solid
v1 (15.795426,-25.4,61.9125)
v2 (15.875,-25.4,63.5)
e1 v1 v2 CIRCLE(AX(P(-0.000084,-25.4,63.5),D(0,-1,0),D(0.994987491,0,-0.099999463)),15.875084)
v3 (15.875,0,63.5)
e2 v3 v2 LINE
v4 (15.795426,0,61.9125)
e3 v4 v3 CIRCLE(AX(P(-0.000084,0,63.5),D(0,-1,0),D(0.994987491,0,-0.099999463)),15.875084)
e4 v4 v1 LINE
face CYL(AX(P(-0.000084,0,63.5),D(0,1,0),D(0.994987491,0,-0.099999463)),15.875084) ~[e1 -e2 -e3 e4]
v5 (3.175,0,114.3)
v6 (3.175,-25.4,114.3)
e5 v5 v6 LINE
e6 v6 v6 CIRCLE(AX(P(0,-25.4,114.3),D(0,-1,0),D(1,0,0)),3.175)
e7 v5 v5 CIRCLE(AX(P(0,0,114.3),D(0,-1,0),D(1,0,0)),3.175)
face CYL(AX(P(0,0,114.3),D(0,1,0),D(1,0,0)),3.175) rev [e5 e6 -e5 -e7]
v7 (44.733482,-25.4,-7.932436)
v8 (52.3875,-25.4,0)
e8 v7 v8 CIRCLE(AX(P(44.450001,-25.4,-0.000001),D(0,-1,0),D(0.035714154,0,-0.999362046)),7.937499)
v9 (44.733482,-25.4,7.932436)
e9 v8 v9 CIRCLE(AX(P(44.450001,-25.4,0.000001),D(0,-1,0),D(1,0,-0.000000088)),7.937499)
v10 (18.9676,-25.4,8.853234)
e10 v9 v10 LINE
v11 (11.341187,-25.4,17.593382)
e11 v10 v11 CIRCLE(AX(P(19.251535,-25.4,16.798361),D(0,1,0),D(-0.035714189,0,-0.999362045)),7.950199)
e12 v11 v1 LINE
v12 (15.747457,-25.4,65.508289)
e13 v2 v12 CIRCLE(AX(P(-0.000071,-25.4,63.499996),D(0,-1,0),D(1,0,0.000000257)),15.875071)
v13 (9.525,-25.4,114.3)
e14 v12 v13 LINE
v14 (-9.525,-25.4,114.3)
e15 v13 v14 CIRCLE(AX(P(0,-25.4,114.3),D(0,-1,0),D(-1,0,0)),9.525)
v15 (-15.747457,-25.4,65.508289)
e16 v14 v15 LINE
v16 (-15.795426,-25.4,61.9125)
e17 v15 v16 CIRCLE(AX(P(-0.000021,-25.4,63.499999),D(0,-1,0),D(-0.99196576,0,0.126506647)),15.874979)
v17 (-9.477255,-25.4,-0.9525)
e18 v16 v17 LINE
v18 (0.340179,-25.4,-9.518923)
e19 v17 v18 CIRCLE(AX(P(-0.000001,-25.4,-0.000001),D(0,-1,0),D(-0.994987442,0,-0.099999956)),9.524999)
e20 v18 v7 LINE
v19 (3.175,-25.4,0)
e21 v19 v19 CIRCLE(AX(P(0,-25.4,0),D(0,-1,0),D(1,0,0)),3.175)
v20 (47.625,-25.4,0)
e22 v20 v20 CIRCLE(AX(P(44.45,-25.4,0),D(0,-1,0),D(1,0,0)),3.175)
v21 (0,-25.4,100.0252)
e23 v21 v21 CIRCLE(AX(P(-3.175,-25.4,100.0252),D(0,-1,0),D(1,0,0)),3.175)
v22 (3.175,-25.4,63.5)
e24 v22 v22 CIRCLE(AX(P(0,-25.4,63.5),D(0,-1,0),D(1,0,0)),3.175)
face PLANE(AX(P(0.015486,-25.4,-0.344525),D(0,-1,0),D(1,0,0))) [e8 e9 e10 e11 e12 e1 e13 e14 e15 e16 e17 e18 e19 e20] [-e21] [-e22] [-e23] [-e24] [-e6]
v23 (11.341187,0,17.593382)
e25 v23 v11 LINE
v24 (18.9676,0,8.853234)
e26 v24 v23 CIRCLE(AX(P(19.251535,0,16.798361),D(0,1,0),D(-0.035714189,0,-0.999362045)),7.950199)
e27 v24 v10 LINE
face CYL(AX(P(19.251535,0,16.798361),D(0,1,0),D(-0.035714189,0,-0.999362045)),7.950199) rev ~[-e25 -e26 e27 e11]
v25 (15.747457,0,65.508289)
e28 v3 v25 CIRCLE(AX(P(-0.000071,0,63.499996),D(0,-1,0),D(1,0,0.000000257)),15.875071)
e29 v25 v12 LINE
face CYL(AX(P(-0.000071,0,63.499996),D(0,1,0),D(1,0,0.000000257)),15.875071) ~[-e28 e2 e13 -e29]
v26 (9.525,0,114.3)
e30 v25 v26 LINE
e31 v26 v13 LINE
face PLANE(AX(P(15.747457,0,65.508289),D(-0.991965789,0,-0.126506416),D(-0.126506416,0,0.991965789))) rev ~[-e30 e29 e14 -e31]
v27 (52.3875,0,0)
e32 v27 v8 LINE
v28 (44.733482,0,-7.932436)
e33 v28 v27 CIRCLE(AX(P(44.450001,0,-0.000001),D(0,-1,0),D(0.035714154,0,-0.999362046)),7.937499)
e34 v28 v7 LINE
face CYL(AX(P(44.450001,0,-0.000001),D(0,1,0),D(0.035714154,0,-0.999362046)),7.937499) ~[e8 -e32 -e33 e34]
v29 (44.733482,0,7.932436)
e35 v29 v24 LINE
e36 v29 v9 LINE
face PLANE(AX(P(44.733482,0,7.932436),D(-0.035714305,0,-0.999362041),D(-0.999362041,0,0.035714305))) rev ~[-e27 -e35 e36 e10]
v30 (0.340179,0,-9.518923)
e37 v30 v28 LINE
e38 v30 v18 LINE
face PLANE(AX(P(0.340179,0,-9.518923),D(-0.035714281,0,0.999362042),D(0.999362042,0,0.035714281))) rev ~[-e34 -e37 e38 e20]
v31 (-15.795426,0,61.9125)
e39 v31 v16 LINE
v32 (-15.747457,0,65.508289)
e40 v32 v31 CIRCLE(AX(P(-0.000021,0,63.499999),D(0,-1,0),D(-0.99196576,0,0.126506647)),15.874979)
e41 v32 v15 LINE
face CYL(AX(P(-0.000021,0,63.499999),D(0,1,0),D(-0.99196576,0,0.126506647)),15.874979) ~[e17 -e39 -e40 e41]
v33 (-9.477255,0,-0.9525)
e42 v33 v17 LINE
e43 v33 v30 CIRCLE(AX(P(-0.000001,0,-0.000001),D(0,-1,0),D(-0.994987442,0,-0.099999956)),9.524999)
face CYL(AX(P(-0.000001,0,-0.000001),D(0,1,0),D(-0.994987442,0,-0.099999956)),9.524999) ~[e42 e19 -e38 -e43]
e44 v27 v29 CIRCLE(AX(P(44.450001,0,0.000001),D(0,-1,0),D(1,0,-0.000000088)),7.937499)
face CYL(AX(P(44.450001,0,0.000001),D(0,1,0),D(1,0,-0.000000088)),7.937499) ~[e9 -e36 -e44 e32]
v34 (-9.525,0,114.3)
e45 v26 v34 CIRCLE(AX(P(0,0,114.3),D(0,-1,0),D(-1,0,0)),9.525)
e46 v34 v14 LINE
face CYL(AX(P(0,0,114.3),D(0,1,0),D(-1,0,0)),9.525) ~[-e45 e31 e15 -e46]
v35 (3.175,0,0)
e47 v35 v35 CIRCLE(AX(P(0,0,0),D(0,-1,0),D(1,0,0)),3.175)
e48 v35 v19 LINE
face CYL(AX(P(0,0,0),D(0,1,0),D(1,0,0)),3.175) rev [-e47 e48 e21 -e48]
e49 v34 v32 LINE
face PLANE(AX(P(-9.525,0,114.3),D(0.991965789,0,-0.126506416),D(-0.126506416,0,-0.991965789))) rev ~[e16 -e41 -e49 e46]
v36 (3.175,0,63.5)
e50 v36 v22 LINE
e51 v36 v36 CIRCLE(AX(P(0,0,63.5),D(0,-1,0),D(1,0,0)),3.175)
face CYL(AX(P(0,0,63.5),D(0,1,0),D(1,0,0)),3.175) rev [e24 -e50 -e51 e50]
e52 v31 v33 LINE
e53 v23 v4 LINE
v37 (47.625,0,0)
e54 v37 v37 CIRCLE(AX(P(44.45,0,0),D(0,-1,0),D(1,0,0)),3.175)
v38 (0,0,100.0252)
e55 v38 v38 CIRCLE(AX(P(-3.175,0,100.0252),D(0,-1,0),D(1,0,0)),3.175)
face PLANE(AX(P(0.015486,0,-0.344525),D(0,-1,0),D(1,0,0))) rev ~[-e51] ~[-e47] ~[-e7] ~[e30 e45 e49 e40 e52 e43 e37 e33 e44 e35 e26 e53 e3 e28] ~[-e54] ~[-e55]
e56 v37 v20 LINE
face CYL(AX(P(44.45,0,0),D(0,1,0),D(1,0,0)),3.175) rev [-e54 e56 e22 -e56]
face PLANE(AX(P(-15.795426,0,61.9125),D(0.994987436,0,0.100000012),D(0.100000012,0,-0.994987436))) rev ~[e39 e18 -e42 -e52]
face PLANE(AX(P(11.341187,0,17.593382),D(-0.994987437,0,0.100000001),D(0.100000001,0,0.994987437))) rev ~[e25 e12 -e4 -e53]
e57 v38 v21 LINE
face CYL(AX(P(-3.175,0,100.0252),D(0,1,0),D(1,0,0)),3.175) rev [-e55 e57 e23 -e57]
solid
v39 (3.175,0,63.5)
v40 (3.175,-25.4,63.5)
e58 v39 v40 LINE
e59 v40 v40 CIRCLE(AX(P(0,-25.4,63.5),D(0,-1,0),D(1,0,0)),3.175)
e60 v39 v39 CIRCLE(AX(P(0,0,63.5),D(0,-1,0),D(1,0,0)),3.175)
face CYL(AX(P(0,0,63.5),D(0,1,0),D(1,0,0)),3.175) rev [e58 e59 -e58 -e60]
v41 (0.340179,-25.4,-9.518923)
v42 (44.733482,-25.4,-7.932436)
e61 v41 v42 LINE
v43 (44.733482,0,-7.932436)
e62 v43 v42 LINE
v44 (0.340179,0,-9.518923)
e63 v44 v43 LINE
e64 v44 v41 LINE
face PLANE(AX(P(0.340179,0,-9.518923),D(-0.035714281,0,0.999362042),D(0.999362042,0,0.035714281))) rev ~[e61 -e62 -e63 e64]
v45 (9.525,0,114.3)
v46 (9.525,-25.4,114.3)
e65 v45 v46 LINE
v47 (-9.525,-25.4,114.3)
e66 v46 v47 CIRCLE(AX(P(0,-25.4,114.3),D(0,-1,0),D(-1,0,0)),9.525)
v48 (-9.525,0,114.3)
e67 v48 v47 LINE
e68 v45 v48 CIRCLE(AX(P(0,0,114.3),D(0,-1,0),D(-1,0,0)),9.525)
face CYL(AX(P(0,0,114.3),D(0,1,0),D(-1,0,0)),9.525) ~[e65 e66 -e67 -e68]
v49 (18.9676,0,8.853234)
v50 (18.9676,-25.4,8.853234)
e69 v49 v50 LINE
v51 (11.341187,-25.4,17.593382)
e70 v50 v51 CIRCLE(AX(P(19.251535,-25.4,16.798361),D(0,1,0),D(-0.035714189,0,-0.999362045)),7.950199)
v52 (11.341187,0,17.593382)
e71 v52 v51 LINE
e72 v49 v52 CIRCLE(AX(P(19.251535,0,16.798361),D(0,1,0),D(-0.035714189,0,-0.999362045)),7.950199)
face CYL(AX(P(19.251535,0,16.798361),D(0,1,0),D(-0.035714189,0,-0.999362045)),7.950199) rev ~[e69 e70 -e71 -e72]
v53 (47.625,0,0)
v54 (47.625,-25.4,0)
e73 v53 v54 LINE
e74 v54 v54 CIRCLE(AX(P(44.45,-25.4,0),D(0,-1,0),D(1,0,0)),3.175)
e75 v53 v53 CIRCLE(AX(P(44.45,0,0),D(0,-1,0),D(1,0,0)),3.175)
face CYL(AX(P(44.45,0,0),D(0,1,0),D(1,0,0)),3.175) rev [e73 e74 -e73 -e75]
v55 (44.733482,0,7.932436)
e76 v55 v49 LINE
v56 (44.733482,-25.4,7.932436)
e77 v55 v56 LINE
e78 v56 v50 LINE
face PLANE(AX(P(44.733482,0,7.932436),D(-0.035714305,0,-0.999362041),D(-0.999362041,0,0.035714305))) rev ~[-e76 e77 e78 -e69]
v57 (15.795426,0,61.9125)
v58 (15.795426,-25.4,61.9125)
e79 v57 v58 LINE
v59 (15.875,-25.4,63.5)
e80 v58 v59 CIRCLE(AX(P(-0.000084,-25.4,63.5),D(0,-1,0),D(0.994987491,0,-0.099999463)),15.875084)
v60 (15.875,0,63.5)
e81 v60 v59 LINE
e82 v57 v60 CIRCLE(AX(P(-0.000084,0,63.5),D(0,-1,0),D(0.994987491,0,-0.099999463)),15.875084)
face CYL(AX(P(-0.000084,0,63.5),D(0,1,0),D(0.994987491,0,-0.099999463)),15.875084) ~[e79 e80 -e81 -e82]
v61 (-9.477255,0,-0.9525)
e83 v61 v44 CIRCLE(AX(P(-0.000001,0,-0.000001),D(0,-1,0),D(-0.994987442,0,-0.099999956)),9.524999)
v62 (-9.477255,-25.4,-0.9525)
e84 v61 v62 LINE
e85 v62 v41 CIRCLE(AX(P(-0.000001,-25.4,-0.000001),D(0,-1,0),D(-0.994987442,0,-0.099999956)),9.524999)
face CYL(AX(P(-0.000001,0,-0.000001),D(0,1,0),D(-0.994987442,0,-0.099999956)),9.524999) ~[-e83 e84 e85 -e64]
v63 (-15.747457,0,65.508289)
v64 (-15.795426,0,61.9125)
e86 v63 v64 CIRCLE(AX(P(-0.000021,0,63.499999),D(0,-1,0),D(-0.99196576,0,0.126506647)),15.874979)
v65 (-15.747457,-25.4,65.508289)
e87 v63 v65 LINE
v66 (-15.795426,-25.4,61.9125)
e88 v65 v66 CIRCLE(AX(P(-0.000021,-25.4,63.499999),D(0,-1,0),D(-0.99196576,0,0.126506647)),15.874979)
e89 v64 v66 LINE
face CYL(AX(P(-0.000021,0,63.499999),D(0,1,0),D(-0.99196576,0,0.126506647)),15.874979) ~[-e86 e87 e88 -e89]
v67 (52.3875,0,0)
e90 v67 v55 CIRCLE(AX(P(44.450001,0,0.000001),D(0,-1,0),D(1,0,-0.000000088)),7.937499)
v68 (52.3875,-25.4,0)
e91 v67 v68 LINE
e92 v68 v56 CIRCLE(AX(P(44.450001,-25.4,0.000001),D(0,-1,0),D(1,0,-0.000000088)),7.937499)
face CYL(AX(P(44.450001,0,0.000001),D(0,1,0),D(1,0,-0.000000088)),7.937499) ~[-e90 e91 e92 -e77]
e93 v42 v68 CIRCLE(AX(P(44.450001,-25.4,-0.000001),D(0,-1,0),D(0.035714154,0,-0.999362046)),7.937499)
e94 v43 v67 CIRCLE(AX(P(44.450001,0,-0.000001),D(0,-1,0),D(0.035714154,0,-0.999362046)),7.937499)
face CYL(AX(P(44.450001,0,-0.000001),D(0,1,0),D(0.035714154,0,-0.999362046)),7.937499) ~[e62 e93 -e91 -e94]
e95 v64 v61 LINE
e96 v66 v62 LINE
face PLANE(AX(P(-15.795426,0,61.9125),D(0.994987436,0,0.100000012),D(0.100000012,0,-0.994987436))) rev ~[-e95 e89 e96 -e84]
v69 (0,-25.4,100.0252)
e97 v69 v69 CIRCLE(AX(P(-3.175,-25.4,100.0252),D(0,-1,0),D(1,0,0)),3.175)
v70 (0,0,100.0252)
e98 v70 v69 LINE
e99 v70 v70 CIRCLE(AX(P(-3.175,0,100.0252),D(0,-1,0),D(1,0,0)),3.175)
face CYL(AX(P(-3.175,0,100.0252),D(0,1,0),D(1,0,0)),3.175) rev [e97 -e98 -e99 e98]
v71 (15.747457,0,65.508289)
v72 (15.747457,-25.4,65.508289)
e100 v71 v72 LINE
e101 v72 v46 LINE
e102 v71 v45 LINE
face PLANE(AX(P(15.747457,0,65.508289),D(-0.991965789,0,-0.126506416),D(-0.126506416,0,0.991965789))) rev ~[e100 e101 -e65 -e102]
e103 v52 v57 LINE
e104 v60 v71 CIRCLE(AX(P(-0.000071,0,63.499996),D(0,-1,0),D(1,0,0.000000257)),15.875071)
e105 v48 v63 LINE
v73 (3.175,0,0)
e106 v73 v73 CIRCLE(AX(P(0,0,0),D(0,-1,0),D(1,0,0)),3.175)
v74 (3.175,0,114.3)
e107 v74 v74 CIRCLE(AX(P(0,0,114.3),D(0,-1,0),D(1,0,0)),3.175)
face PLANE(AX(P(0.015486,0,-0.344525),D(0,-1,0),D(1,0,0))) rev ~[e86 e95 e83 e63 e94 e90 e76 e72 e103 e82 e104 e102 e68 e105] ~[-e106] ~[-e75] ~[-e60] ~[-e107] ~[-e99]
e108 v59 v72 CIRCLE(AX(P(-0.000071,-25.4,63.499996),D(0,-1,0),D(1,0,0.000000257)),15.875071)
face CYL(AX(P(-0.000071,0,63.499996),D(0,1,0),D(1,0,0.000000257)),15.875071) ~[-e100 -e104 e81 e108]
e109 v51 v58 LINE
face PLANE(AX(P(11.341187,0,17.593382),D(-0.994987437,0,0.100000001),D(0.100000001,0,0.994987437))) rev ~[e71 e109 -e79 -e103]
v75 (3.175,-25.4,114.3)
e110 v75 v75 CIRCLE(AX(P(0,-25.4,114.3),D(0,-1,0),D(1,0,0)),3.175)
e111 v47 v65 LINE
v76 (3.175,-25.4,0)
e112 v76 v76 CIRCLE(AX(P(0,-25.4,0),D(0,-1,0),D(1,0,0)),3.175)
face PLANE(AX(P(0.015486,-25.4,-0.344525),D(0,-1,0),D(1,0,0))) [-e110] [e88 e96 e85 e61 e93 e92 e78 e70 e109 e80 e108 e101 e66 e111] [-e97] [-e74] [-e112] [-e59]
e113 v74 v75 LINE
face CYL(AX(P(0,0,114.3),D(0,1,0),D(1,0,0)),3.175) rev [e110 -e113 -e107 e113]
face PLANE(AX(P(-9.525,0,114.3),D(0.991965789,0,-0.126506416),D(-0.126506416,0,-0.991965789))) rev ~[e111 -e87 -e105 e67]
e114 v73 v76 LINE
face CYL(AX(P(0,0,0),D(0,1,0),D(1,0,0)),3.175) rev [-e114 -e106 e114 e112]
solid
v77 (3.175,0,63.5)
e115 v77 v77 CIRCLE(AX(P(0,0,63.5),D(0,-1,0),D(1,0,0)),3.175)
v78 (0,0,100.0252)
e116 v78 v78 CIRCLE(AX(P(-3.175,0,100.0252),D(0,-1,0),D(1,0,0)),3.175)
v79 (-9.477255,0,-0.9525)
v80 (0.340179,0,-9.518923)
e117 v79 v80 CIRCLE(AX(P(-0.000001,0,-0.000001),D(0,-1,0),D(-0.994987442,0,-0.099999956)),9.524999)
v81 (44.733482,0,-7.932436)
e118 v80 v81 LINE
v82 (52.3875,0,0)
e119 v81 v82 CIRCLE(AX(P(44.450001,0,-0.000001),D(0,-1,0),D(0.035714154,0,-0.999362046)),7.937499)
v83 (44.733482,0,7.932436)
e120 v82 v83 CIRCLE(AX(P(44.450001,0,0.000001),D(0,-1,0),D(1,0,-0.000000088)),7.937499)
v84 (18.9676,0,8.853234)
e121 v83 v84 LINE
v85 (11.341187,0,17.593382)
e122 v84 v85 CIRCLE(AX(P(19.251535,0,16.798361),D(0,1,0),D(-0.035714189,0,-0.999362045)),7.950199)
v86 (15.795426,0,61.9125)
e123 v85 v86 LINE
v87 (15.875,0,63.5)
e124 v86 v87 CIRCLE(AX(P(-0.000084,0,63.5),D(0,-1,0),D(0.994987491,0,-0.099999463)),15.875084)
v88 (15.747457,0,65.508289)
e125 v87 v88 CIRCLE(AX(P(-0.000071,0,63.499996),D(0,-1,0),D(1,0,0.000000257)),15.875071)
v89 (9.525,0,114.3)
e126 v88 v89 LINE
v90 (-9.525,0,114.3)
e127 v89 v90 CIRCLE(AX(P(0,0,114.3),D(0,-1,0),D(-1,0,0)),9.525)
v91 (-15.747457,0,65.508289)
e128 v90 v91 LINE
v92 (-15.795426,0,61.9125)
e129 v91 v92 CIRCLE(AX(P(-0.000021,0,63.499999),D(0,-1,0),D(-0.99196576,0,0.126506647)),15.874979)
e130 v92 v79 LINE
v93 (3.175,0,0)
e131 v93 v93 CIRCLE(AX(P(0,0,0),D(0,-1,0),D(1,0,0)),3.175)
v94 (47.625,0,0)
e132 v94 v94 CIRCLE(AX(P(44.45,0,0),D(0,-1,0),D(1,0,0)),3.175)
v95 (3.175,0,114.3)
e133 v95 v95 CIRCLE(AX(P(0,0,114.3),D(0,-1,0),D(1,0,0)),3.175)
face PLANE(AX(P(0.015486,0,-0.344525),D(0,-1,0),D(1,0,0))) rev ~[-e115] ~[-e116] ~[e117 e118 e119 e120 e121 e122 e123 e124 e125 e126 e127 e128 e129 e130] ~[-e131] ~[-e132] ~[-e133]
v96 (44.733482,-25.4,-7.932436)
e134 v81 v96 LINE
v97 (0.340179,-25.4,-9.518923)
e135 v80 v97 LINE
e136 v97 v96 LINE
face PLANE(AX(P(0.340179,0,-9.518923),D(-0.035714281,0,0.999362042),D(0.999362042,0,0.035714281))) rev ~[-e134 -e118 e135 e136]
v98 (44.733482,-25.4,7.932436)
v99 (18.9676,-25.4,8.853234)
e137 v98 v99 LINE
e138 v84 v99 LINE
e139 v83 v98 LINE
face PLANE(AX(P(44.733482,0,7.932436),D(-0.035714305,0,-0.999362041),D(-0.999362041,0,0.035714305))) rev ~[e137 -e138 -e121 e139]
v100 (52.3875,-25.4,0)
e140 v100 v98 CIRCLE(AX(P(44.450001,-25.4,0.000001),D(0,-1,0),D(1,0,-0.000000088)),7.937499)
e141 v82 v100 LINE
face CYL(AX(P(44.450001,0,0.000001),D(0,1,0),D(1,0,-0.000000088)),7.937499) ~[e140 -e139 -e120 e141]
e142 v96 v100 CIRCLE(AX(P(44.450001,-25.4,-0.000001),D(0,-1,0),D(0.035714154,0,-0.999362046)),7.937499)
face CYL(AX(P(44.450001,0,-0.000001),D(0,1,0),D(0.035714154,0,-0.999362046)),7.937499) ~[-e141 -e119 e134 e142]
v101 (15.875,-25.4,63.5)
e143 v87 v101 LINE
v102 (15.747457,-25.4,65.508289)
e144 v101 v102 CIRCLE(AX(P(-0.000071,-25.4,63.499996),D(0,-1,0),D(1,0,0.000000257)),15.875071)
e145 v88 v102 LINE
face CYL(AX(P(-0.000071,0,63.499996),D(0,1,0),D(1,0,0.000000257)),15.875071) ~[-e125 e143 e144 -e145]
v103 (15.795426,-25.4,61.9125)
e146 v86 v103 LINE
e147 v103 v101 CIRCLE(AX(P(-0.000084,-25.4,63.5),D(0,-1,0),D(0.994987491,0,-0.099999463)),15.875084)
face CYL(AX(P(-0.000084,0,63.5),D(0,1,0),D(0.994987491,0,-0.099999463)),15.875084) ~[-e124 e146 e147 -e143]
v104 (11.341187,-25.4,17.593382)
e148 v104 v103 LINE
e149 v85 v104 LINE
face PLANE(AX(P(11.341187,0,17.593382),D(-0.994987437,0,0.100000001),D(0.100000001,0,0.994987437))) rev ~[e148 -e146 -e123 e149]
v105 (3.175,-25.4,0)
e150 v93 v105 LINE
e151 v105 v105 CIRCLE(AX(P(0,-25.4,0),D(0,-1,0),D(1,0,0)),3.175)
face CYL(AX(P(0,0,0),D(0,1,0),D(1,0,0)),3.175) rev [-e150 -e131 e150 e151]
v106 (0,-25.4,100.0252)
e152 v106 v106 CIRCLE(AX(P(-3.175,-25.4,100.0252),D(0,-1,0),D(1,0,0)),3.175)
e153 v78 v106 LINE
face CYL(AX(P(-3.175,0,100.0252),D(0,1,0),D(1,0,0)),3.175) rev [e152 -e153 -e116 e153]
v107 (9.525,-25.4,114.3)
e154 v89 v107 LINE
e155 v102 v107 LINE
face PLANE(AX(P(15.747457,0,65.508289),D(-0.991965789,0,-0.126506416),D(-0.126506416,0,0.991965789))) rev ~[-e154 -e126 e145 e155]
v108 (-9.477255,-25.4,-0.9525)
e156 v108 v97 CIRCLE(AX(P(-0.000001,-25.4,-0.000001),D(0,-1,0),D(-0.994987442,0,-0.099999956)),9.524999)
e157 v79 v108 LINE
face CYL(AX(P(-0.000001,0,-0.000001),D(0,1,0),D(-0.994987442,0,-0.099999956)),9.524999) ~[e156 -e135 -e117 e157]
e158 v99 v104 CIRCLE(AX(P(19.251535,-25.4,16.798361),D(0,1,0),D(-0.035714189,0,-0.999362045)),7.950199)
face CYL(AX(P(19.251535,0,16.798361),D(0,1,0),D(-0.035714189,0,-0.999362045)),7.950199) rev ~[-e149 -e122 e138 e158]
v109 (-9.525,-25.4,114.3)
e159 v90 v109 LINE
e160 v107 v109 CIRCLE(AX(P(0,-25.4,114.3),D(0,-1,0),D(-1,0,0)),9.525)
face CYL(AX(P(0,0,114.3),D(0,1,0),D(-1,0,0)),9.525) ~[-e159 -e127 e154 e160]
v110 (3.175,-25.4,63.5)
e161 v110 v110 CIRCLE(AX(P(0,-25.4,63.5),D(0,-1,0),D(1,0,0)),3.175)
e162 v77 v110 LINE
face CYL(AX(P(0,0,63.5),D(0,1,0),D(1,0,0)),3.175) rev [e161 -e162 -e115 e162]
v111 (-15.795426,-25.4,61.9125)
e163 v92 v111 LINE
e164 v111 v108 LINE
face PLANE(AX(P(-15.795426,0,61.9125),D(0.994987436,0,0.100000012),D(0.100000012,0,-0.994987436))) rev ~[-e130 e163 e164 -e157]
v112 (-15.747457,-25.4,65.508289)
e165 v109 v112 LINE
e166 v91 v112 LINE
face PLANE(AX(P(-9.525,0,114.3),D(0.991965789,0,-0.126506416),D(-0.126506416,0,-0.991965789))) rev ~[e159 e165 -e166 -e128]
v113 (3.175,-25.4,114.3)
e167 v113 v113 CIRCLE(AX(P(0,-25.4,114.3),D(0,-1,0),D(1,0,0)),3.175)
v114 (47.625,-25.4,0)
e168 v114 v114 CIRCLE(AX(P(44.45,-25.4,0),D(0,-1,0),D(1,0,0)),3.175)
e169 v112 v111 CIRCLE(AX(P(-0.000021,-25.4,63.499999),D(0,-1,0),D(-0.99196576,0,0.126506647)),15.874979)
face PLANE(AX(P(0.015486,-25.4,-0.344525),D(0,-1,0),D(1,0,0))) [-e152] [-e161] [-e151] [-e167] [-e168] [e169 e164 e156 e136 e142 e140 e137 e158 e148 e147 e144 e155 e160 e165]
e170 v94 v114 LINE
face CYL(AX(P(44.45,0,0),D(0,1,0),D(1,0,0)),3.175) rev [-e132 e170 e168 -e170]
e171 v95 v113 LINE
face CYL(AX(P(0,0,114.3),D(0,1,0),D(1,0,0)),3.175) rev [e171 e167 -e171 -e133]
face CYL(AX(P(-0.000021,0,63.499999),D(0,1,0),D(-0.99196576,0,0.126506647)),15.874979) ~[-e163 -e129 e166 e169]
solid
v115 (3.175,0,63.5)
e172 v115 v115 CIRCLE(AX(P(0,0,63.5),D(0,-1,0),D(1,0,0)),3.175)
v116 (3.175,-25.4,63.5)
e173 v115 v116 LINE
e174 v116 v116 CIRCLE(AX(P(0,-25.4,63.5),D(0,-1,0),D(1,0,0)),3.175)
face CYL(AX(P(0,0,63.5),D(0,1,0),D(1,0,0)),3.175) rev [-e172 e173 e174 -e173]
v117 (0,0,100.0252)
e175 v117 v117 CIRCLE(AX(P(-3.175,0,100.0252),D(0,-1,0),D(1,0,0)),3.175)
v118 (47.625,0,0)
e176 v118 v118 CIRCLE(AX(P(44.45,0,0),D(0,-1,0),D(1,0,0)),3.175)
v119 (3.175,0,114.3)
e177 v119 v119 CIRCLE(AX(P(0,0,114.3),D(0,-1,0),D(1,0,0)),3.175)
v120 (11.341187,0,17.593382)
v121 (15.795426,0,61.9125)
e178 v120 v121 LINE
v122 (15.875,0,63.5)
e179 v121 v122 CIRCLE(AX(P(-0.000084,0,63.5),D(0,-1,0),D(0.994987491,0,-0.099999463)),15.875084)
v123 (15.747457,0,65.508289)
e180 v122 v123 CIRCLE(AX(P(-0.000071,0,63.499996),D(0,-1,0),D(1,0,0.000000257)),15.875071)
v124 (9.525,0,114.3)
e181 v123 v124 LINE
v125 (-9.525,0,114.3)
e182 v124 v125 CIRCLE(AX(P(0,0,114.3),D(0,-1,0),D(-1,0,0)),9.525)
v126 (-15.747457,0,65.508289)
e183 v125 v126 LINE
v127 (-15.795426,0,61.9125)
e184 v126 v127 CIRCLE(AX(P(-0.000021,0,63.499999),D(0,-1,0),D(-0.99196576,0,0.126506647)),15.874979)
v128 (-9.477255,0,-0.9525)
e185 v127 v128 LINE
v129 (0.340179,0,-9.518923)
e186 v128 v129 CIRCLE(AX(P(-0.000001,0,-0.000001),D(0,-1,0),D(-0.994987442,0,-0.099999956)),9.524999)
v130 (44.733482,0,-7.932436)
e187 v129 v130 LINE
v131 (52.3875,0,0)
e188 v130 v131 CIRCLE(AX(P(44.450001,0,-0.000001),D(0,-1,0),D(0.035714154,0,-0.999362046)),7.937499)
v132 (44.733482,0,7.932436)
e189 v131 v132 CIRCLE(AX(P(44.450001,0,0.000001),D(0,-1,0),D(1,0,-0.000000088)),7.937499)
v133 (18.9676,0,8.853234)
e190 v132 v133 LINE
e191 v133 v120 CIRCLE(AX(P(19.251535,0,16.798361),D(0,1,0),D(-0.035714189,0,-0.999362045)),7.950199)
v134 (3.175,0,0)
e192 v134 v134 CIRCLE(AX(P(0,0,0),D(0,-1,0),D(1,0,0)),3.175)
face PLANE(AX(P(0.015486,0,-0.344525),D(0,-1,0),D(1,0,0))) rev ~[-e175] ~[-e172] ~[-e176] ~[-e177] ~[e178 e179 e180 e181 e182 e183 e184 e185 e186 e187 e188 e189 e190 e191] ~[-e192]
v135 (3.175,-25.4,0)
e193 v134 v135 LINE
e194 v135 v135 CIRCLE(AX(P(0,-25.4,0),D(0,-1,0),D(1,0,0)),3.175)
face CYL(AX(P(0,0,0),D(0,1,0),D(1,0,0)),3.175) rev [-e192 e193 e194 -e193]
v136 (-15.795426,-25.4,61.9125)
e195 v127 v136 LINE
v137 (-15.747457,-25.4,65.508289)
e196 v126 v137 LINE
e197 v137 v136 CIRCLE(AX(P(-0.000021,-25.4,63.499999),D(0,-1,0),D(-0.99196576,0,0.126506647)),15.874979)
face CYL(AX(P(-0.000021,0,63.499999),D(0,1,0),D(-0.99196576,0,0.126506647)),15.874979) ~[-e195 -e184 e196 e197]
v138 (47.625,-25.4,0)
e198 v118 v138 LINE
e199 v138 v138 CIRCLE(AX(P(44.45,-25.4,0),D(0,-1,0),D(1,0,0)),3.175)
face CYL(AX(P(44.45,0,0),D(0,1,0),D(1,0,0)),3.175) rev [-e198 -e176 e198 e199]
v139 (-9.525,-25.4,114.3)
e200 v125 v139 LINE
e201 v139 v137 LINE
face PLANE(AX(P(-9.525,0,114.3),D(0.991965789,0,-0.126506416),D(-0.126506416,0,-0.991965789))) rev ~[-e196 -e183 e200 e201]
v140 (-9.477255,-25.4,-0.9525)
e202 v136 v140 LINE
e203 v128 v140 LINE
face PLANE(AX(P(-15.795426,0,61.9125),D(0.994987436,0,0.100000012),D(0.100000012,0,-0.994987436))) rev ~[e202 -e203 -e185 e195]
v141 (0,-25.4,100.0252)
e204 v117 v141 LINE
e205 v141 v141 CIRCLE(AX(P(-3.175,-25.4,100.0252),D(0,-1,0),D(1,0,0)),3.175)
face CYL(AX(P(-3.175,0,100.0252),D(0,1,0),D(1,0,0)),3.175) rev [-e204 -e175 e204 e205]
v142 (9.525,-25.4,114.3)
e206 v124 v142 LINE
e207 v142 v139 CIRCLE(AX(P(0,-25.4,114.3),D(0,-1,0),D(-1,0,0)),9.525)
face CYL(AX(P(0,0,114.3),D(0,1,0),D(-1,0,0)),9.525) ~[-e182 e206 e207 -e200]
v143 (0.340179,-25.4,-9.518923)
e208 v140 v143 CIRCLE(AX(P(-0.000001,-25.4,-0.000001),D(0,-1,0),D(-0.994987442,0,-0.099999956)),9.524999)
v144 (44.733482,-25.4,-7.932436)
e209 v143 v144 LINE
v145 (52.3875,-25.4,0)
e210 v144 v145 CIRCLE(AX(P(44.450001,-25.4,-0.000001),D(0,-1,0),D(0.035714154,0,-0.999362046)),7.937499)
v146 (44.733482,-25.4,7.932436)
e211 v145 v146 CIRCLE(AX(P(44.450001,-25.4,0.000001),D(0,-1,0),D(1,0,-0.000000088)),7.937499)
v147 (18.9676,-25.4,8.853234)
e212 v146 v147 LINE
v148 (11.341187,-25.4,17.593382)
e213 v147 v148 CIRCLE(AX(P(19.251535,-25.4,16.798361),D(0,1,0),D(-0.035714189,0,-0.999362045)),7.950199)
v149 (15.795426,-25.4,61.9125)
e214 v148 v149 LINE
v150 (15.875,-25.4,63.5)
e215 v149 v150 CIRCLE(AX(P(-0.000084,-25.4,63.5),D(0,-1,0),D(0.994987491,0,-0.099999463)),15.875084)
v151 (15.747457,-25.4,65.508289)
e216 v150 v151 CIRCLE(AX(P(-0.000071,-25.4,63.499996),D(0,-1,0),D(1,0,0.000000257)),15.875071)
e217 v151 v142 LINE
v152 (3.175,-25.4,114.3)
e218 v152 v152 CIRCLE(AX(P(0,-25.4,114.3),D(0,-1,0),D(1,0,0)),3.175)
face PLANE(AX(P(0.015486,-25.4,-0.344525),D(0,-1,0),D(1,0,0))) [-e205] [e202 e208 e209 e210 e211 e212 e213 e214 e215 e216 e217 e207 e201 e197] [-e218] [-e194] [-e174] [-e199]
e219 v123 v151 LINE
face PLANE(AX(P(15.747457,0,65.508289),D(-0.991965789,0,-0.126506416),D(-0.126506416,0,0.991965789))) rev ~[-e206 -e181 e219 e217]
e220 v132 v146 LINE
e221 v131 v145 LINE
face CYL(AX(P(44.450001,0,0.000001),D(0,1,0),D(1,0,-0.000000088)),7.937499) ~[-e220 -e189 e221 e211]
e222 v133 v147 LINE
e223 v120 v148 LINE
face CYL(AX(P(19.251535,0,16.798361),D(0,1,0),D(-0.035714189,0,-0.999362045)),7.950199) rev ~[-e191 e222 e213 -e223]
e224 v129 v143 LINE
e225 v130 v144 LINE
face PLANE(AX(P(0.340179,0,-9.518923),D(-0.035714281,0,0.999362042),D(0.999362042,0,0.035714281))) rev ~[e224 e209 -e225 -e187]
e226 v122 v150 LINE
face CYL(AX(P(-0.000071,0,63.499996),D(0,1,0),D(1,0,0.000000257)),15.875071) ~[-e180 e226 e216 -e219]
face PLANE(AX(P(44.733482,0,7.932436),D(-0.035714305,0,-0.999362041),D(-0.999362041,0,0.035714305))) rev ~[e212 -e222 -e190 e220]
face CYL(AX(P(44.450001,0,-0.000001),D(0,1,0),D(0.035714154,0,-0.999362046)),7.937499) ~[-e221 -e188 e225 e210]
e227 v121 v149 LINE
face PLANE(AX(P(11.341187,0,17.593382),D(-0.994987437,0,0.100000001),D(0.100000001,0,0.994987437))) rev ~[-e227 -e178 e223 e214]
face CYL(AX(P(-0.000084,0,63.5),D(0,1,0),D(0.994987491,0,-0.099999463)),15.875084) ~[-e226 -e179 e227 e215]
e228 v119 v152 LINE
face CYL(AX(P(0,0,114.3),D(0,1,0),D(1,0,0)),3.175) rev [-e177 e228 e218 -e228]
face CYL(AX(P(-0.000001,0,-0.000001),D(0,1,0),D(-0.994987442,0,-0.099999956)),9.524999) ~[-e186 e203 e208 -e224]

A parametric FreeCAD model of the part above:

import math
import FreeCAD as App
import Part
import Sketcher
from FreeCAD import Vector
Q = App.Units.Quantity

doc = App.newDocument("Part")
body = doc.addObject("PartDesign::Body", "Body")

sketch1 = doc.addObject("Sketcher::SketchObject", "Sketch")
body.addObject(sketch1)
sketch1.AttachmentSupport = (doc.XZ_Plane, [""])
sketch1.MapMode = "FlatFace"
sketch1.addGeometry([
    Part.ArcOfCircle(Part.Circle(Vector(-0.000001, -0.000001, 0), Vector(0, 0, 1), 9.524999), math.radians(-174.260832), math.radians(-87.953281)),
    Part.LineSegment(Vector(0.340179, -9.518923, 0), Vector(44.733482, -7.932436, 0)),
    Part.ArcOfCircle(Part.Circle(Vector(44.450001, -0.000001, 0), Vector(0, 0, 1), 7.937499), math.radians(-87.953294), math.radians(0.000005)),
    Part.ArcOfCircle(Part.Circle(Vector(44.450001, 0.000001, 0), Vector(0, 0, 1), 7.937499), math.radians(-0.000005), math.radians(87.953294)),
    Part.LineSegment(Vector(44.733482, 7.932436, 0), Vector(18.9676, 8.853234, 0)),
    Part.ArcOfCircle(Part.Circle(Vector(19.251535, 16.798361, 0), Vector(0, 0, 1), 7.950199), math.radians(174.260822), math.radians(267.953292)),
    Part.LineSegment(Vector(11.341187, 17.593382, 0), Vector(15.795426, 61.9125, 0)),
    Part.ArcOfCircle(Part.Circle(Vector(-0.000084, 63.5, 0), Vector(0, 0, 1), 15.875084), math.radians(-5.73914), math.radians(0)),
    Part.ArcOfCircle(Part.Circle(Vector(-0.000071, 63.499996, 0), Vector(0, 0, 1), 15.875071), math.radians(0.000015), math.radians(7.267739)),
    Part.LineSegment(Vector(15.747457, 65.508289, 0), Vector(9.525, 114.3, 0)),
    Part.ArcOfCircle(Part.Circle(Vector(0, 114.3, 0), Vector(0, 0, 1), 9.525), math.radians(0), math.radians(180)),
    Part.LineSegment(Vector(-9.525, 114.3, 0), Vector(-15.747457, 65.508289, 0)),
    Part.ArcOfCircle(Part.Circle(Vector(-0.000021, 63.499999, 0), Vector(0, 0, 1), 15.874979), math.radians(172.732229), math.radians(185.739173)),
    Part.LineSegment(Vector(-15.795426, 61.9125, 0), Vector(-9.477255, -0.9525, 0)),
    Part.Circle(Vector(0, 0, 0), Vector(0, 0, 1), 3.175),
    Part.Circle(Vector(44.45, 0, 0), Vector(0, 0, 1), 3.175),
    Part.Circle(Vector(0, 63.5, 0), Vector(0, 0, 1), 3.175),
    Part.Circle(Vector(-3.175, 100.0252, 0), Vector(0, 0, 1), 3.175),
    Part.Circle(Vector(0, 114.3, 0), Vector(0, 0, 1), 3.175),
], False)
sketch1.addConstraint([
    Sketcher.Constraint("Coincident", 0, 2, 1, 1),
    Sketcher.Constraint("Coincident", 1, 2, 2, 1),
    Sketcher.Constraint("Coincident", 2, 2, 3, 1),
    Sketcher.Constraint("Coincident", 3, 2, 4, 1),
    Sketcher.Constraint("Coincident", 4, 2, 5, 2),
    Sketcher.Constraint("Coincident", 5, 1, 6, 1),
    Sketcher.Constraint("Coincident", 6, 2, 7, 1),
    Sketcher.Constraint("Coincident", 7, 2, 8, 1),
    Sketcher.Constraint("Coincident", 8, 2, 9, 1),
    Sketcher.Constraint("Coincident", 9, 2, 10, 1),
    Sketcher.Constraint("Coincident", 10, 2, 11, 1),
    Sketcher.Constraint("Coincident", 11, 2, 12, 1),
    Sketcher.Constraint("Coincident", 12, 2, 13, 1),
    Sketcher.Constraint("Coincident", 13, 2, 0, 1),
    Sketcher.Constraint("Coincident", 0, 3, -1, 1),
    Sketcher.Constraint("Coincident", 14, 3, -1, 1),
    Sketcher.Constraint("Coincident", 3, 3, 2, 3),
    Sketcher.Constraint("Coincident", 15, 3, 2, 3),
    Sketcher.Constraint("Coincident", 18, 3, 10, 3),
    Sketcher.Constraint("PointOnObject", 2, 3, -1),
    Sketcher.Constraint("PointOnObject", 10, 3, -2),
    Sketcher.Constraint("PointOnObject", 16, 3, -2),
    Sketcher.Constraint("PointOnObject", 2, 2, -1),
    Sketcher.Constraint("Diameter", 14, Q("0.25 in")),
    Sketcher.Constraint("Diameter", 15, Q("0.25 in")),
    Sketcher.Constraint("Diameter", 16, Q("0.25 in")),
    Sketcher.Constraint("Diameter", 17, Q("0.25 in")),
    Sketcher.Constraint("Diameter", 18, Q("0.25 in")),
    Sketcher.Constraint("Radius", 0, Q("0.375 in")),
    Sketcher.Constraint("Radius", 2, Q("0.3125 in")),
    Sketcher.Constraint("Radius", 5, Q("0.313 in")),
    Sketcher.Constraint("Radius", 10, Q("0.375 in")),
    Sketcher.Constraint("DistanceY", 7, 3, 10, 3, Q("2 in")),
    Sketcher.Constraint("DistanceY", 8, 3, 10, 3, Q("2.0000002 in")),
    Sketcher.Constraint("DistanceY", 12, 3, 10, 3, Q("2.0000001 in")),
    Sketcher.Constraint("DistanceY", 16, 3, 10, 3, Q("2 in")),
    Sketcher.Constraint("DistanceY", 7, 2, 9, 2, Q("2 in")),
    Sketcher.Constraint("DistanceY", 7, 3, 10, 2, Q("2 in")),
    Sketcher.Constraint("DistanceY", -1, 1, 7, 3, Q("2.5 in")),
    Sketcher.Constraint("DistanceY", -1, 1, 7, 2, Q("2.5 in")),
    Sketcher.Constraint("DistanceX", 17, 3, 9, 2, Q("0.5 in")),
    Sketcher.Constraint("DistanceX", -1, 1, 2, 3, Q("1.75 in")),
    Sketcher.Constraint("DistanceX", 9, 2, 7, 2, Q("0.25 in")),
    Sketcher.Constraint("DistanceY", -1, 1, 17, 3, Q("3.938 in")),
    Sketcher.Constraint("DistanceY", -1, 1, 6, 2, Q("2.4375 in")),
    Sketcher.Constraint("DistanceY", -1, 1, 12, 2, Q("2.4375 in")),
    Sketcher.Constraint("Radius", 8, 15.875071),
    Sketcher.Constraint("Radius", 12, 15.874979),
    Sketcher.Constraint("DistanceY", 13, 2, -1, 1, Q("0.0375 in")),
    Sketcher.Constraint("Radius", 7, 15.875084),
    Sketcher.Constraint("DistanceY", 5, 3, 5, 1, Q("0.0313 in")),
    Sketcher.Constraint("DistanceX", -1, 1, 4, 2, 18.9676),
    Sketcher.Constraint("Distance", 4, 25.78233),
    Sketcher.Constraint("Distance", 6, 44.54239),
    Sketcher.Constraint("Distance", 9, 49.186889),
    Sketcher.Constraint("Distance", 11, 49.186889),
    Sketcher.Constraint("DistanceY", -1, 1, 5, 3, 16.798361),
    Sketcher.Constraint("DistanceX", -1, 1, 0, 2, 0.340179),
    Sketcher.Constraint("DistanceY", -1, 1, 11, 2, 65.508289),
    Sketcher.Constraint("DistanceX", 2, 3, 1, 2, 0.283481),
])
pad1 = doc.addObject("PartDesign::Pad", "Pad")
body.addObject(pad1)
pad1.Profile = sketch1
pad1.Length = Q("1 in")
body2 = doc.addObject("PartDesign::Body", "Body001")

sketch2 = doc.addObject("Sketcher::SketchObject", "Sketch001")
body2.addObject(sketch2)
sketch2.AttachmentSupport = (doc.getObject("XZ_Plane001"), [""])
sketch2.MapMode = "FlatFace"
sketch2.addGeometry([
    Part.ArcOfCircle(Part.Circle(Vector(-0.000001, -0.000001, 0), Vector(0, 0, 1), 9.524999), math.radians(-174.260832), math.radians(-87.953281)),
    Part.LineSegment(Vector(0.340179, -9.518923, 0), Vector(44.733482, -7.932436, 0)),
    Part.ArcOfCircle(Part.Circle(Vector(44.450001, -0.000001, 0), Vector(0, 0, 1), 7.937499), math.radians(-87.953294), math.radians(0.000005)),
    Part.ArcOfCircle(Part.Circle(Vector(44.450001, 0.000001, 0), Vector(0, 0, 1), 7.937499), math.radians(-0.000005), math.radians(87.953294)),
    Part.LineSegment(Vector(44.733482, 7.932436, 0), Vector(18.9676, 8.853234, 0)),
    Part.ArcOfCircle(Part.Circle(Vector(19.251535, 16.798361, 0), Vector(0, 0, 1), 7.950199), math.radians(174.260822), math.radians(267.953292)),
    Part.LineSegment(Vector(11.341187, 17.593382, 0), Vector(15.795426, 61.9125, 0)),
    Part.ArcOfCircle(Part.Circle(Vector(-0.000084, 63.5, 0), Vector(0, 0, 1), 15.875084), math.radians(-5.73914), math.radians(0)),
    Part.ArcOfCircle(Part.Circle(Vector(-0.000071, 63.499996, 0), Vector(0, 0, 1), 15.875071), math.radians(0.000015), math.radians(7.267739)),
    Part.LineSegment(Vector(15.747457, 65.508289, 0), Vector(9.525, 114.3, 0)),
    Part.ArcOfCircle(Part.Circle(Vector(0, 114.3, 0), Vector(0, 0, 1), 9.525), math.radians(0), math.radians(180)),
    Part.LineSegment(Vector(-9.525, 114.3, 0), Vector(-15.747457, 65.508289, 0)),
    Part.ArcOfCircle(Part.Circle(Vector(-0.000021, 63.499999, 0), Vector(0, 0, 1), 15.874979), math.radians(172.732229), math.radians(185.739173)),
    Part.LineSegment(Vector(-15.795426, 61.9125, 0), Vector(-9.477255, -0.9525, 0)),
    Part.Circle(Vector(0, 0, 0), Vector(0, 0, 1), 3.175),
    Part.Circle(Vector(44.45, 0, 0), Vector(0, 0, 1), 3.175),
    Part.Circle(Vector(0, 63.5, 0), Vector(0, 0, 1), 3.175),
    Part.Circle(Vector(-3.175, 100.0252, 0), Vector(0, 0, 1), 3.175),
    Part.Circle(Vector(0, 114.3, 0), Vector(0, 0, 1), 3.175),
], False)
sketch2.addConstraint([
    Sketcher.Constraint("Coincident", 0, 2, 1, 1),
    Sketcher.Constraint("Coincident", 1, 2, 2, 1),
    Sketcher.Constraint("Coincident", 2, 2, 3, 1),
    Sketcher.Constraint("Coincident", 3, 2, 4, 1),
    Sketcher.Constraint("Coincident", 4, 2, 5, 2),
    Sketcher.Constraint("Coincident", 5, 1, 6, 1),
    Sketcher.Constraint("Coincident", 6, 2, 7, 1),
    Sketcher.Constraint("Coincident", 7, 2, 8, 1),
    Sketcher.Constraint("Coincident", 8, 2, 9, 1),
    Sketcher.Constraint("Coincident", 9, 2, 10, 1),
    Sketcher.Constraint("Coincident", 10, 2, 11, 1),
    Sketcher.Constraint("Coincident", 11, 2, 12, 1),
    Sketcher.Constraint("Coincident", 12, 2, 13, 1),
    Sketcher.Constraint("Coincident", 13, 2, 0, 1),
    Sketcher.Constraint("Coincident", 0, 3, -1, 1),
    Sketcher.Constraint("Coincident", 14, 3, -1, 1),
    Sketcher.Constraint("Coincident", 3, 3, 2, 3),
    Sketcher.Constraint("Coincident", 15, 3, 2, 3),
    Sketcher.Constraint("Coincident", 18, 3, 10, 3),
    Sketcher.Constraint("PointOnObject", 2, 3, -1),
    Sketcher.Constraint("PointOnObject", 10, 3, -2),
    Sketcher.Constraint("PointOnObject", 16, 3, -2),
    Sketcher.Constraint("PointOnObject", 2, 2, -1),
    Sketcher.Constraint("Diameter", 14, Q("0.25 in")),
    Sketcher.Constraint("Diameter", 15, Q("0.25 in")),
    Sketcher.Constraint("Diameter", 16, Q("0.25 in")),
    Sketcher.Constraint("Diameter", 17, Q("0.25 in")),
    Sketcher.Constraint("Diameter", 18, Q("0.25 in")),
    Sketcher.Constraint("Radius", 0, Q("0.375 in")),
    Sketcher.Constraint("Radius", 2, Q("0.3125 in")),
    Sketcher.Constraint("Radius", 5, Q("0.313 in")),
    Sketcher.Constraint("Radius", 10, Q("0.375 in")),
    Sketcher.Constraint("DistanceY", 7, 3, 10, 3, Q("2 in")),
    Sketcher.Constraint("DistanceY", 8, 3, 10, 3, Q("2.0000002 in")),
    Sketcher.Constraint("DistanceY", 12, 3, 10, 3, Q("2.0000001 in")),
    Sketcher.Constraint("DistanceY", 16, 3, 10, 3, Q("2 in")),
    Sketcher.Constraint("DistanceY", 7, 2, 9, 2, Q("2 in")),
    Sketcher.Constraint("DistanceY", 7, 3, 10, 2, Q("2 in")),
    Sketcher.Constraint("DistanceY", -1, 1, 7, 3, Q("2.5 in")),
    Sketcher.Constraint("DistanceY", -1, 1, 7, 2, Q("2.5 in")),
    Sketcher.Constraint("DistanceX", 17, 3, 9, 2, Q("0.5 in")),
    Sketcher.Constraint("DistanceX", -1, 1, 2, 3, Q("1.75 in")),
    Sketcher.Constraint("DistanceX", 9, 2, 7, 2, Q("0.25 in")),
    Sketcher.Constraint("DistanceY", -1, 1, 17, 3, Q("3.938 in")),
    Sketcher.Constraint("DistanceY", -1, 1, 6, 2, Q("2.4375 in")),
    Sketcher.Constraint("DistanceY", -1, 1, 12, 2, Q("2.4375 in")),
    Sketcher.Constraint("Radius", 8, 15.875071),
    Sketcher.Constraint("Radius", 12, 15.874979),
    Sketcher.Constraint("DistanceY", 13, 2, -1, 1, Q("0.0375 in")),
    Sketcher.Constraint("Radius", 7, 15.875084),
    Sketcher.Constraint("DistanceY", 5, 3, 5, 1, Q("0.0313 in")),
    Sketcher.Constraint("DistanceX", -1, 1, 4, 2, 18.9676),
    Sketcher.Constraint("Distance", 4, 25.78233),
    Sketcher.Constraint("Distance", 6, 44.54239),
    Sketcher.Constraint("Distance", 9, 49.186889),
    Sketcher.Constraint("Distance", 11, 49.186889),
    Sketcher.Constraint("DistanceY", -1, 1, 5, 3, 16.798361),
    Sketcher.Constraint("DistanceX", -1, 1, 0, 2, 0.340179),
    Sketcher.Constraint("DistanceY", -1, 1, 11, 2, 65.508289),
    Sketcher.Constraint("DistanceX", 2, 3, 1, 2, 0.283481),
])
pad2 = doc.addObject("PartDesign::Pad", "Pad001")
body2.addObject(pad2)
pad2.Profile = sketch2
pad2.Length = Q("1 in")
body3 = doc.addObject("PartDesign::Body", "Body002")

sketch3 = doc.addObject("Sketcher::SketchObject", "Sketch002")
body3.addObject(sketch3)
sketch3.AttachmentSupport = (doc.getObject("XZ_Plane002"), [""])
sketch3.MapMode = "FlatFace"
sketch3.addGeometry([
    Part.ArcOfCircle(Part.Circle(Vector(-0.000001, -0.000001, 0), Vector(0, 0, 1), 9.524999), math.radians(-174.260832), math.radians(-87.953281)),
    Part.LineSegment(Vector(0.340179, -9.518923, 0), Vector(44.733482, -7.932436, 0)),
    Part.ArcOfCircle(Part.Circle(Vector(44.450001, -0.000001, 0), Vector(0, 0, 1), 7.937499), math.radians(-87.953294), math.radians(0.000005)),
    Part.ArcOfCircle(Part.Circle(Vector(44.450001, 0.000001, 0), Vector(0, 0, 1), 7.937499), math.radians(-0.000005), math.radians(87.953294)),
    Part.LineSegment(Vector(44.733482, 7.932436, 0), Vector(18.9676, 8.853234, 0)),
    Part.ArcOfCircle(Part.Circle(Vector(19.251535, 16.798361, 0), Vector(0, 0, 1), 7.950199), math.radians(174.260822), math.radians(267.953292)),
    Part.LineSegment(Vector(11.341187, 17.593382, 0), Vector(15.795426, 61.9125, 0)),
    Part.ArcOfCircle(Part.Circle(Vector(-0.000084, 63.5, 0), Vector(0, 0, 1), 15.875084), math.radians(-5.73914), math.radians(0)),
    Part.ArcOfCircle(Part.Circle(Vector(-0.000071, 63.499996, 0), Vector(0, 0, 1), 15.875071), math.radians(0.000015), math.radians(7.267739)),
    Part.LineSegment(Vector(15.747457, 65.508289, 0), Vector(9.525, 114.3, 0)),
    Part.ArcOfCircle(Part.Circle(Vector(0, 114.3, 0), Vector(0, 0, 1), 9.525), math.radians(0), math.radians(180)),
    Part.LineSegment(Vector(-9.525, 114.3, 0), Vector(-15.747457, 65.508289, 0)),
    Part.ArcOfCircle(Part.Circle(Vector(-0.000021, 63.499999, 0), Vector(0, 0, 1), 15.874979), math.radians(172.732229), math.radians(185.739173)),
    Part.LineSegment(Vector(-15.795426, 61.9125, 0), Vector(-9.477255, -0.9525, 0)),
    Part.Circle(Vector(0, 0, 0), Vector(0, 0, 1), 3.175),
    Part.Circle(Vector(44.45, 0, 0), Vector(0, 0, 1), 3.175),
    Part.Circle(Vector(0, 63.5, 0), Vector(0, 0, 1), 3.175),
    Part.Circle(Vector(-3.175, 100.0252, 0), Vector(0, 0, 1), 3.175),
    Part.Circle(Vector(0, 114.3, 0), Vector(0, 0, 1), 3.175),
], False)
sketch3.addConstraint([
    Sketcher.Constraint("Coincident", 0, 2, 1, 1),
    Sketcher.Constraint("Coincident", 1, 2, 2, 1),
    Sketcher.Constraint("Coincident", 2, 2, 3, 1),
    Sketcher.Constraint("Coincident", 3, 2, 4, 1),
    Sketcher.Constraint("Coincident", 4, 2, 5, 2),
    Sketcher.Constraint("Coincident", 5, 1, 6, 1),
    Sketcher.Constraint("Coincident", 6, 2, 7, 1),
    Sketcher.Constraint("Coincident", 7, 2, 8, 1),
    Sketcher.Constraint("Coincident", 8, 2, 9, 1),
    Sketcher.Constraint("Coincident", 9, 2, 10, 1),
    Sketcher.Constraint("Coincident", 10, 2, 11, 1),
    Sketcher.Constraint("Coincident", 11, 2, 12, 1),
    Sketcher.Constraint("Coincident", 12, 2, 13, 1),
    Sketcher.Constraint("Coincident", 13, 2, 0, 1),
    Sketcher.Constraint("Coincident", 0, 3, -1, 1),
    Sketcher.Constraint("Coincident", 14, 3, -1, 1),
    Sketcher.Constraint("Coincident", 3, 3, 2, 3),
    Sketcher.Constraint("Coincident", 15, 3, 2, 3),
    Sketcher.Constraint("Coincident", 18, 3, 10, 3),
    Sketcher.Constraint("PointOnObject", 2, 3, -1),
    Sketcher.Constraint("PointOnObject", 10, 3, -2),
    Sketcher.Constraint("PointOnObject", 16, 3, -2),
    Sketcher.Constraint("PointOnObject", 2, 2, -1),
    Sketcher.Constraint("Diameter", 14, Q("0.25 in")),
    Sketcher.Constraint("Diameter", 15, Q("0.25 in")),
    Sketcher.Constraint("Diameter", 16, Q("0.25 in")),
    Sketcher.Constraint("Diameter", 17, Q("0.25 in")),
    Sketcher.Constraint("Diameter", 18, Q("0.25 in")),
    Sketcher.Constraint("Radius", 0, Q("0.375 in")),
    Sketcher.Constraint("Radius", 2, Q("0.3125 in")),
    Sketcher.Constraint("Radius", 5, Q("0.313 in")),
    Sketcher.Constraint("Radius", 10, Q("0.375 in")),
    Sketcher.Constraint("DistanceY", 7, 3, 10, 3, Q("2 in")),
    Sketcher.Constraint("DistanceY", 8, 3, 10, 3, Q("2.0000002 in")),
    Sketcher.Constraint("DistanceY", 12, 3, 10, 3, Q("2.0000001 in")),
    Sketcher.Constraint("DistanceY", 16, 3, 10, 3, Q("2 in")),
    Sketcher.Constraint("DistanceY", 7, 2, 9, 2, Q("2 in")),
    Sketcher.Constraint("DistanceY", 7, 3, 10, 2, Q("2 in")),
    Sketcher.Constraint("DistanceY", -1, 1, 7, 3, Q("2.5 in")),
    Sketcher.Constraint("DistanceY", -1, 1, 7, 2, Q("2.5 in")),
    Sketcher.Constraint("DistanceX", 17, 3, 9, 2, Q("0.5 in")),
    Sketcher.Constraint("DistanceX", -1, 1, 2, 3, Q("1.75 in")),
    Sketcher.Constraint("DistanceX", 9, 2, 7, 2, Q("0.25 in")),
    Sketcher.Constraint("DistanceY", -1, 1, 17, 3, Q("3.938 in")),
    Sketcher.Constraint("DistanceY", -1, 1, 6, 2, Q("2.4375 in")),
    Sketcher.Constraint("DistanceY", -1, 1, 12, 2, Q("2.4375 in")),
    Sketcher.Constraint("Radius", 8, 15.875071),
    Sketcher.Constraint("Radius", 12, 15.874979),
    Sketcher.Constraint("DistanceY", 13, 2, -1, 1, Q("0.0375 in")),
    Sketcher.Constraint("Radius", 7, 15.875084),
    Sketcher.Constraint("DistanceY", 5, 3, 5, 1, Q("0.0313 in")),
    Sketcher.Constraint("DistanceX", -1, 1, 4, 2, 18.9676),
    Sketcher.Constraint("Distance", 4, 25.78233),
    Sketcher.Constraint("Distance", 6, 44.54239),
    Sketcher.Constraint("Distance", 9, 49.186889),
    Sketcher.Constraint("Distance", 11, 49.186889),
    Sketcher.Constraint("DistanceY", -1, 1, 5, 3, 16.798361),
    Sketcher.Constraint("DistanceX", -1, 1, 0, 2, 0.340179),
    Sketcher.Constraint("DistanceY", -1, 1, 11, 2, 65.508289),
    Sketcher.Constraint("DistanceX", 2, 3, 1, 2, 0.283481),
])
pad3 = doc.addObject("PartDesign::Pad", "Pad002")
body3.addObject(pad3)
pad3.Profile = sketch3
pad3.Length = Q("1 in")
body4 = doc.addObject("PartDesign::Body", "Body003")

sketch4 = doc.addObject("Sketcher::SketchObject", "Sketch003")
body4.addObject(sketch4)
sketch4.AttachmentSupport = (doc.getObject("XZ_Plane003"), [""])
sketch4.MapMode = "FlatFace"
sketch4.addGeometry([
    Part.ArcOfCircle(Part.Circle(Vector(-0.000001, -0.000001, 0), Vector(0, 0, 1), 9.524999), math.radians(-174.260832), math.radians(-87.953281)),
    Part.LineSegment(Vector(0.340179, -9.518923, 0), Vector(44.733482, -7.932436, 0)),
    Part.ArcOfCircle(Part.Circle(Vector(44.450001, -0.000001, 0), Vector(0, 0, 1), 7.937499), math.radians(-87.953294), math.radians(0.000005)),
    Part.ArcOfCircle(Part.Circle(Vector(44.450001, 0.000001, 0), Vector(0, 0, 1), 7.937499), math.radians(-0.000005), math.radians(87.953294)),
    Part.LineSegment(Vector(44.733482, 7.932436, 0), Vector(18.9676, 8.853234, 0)),
    Part.ArcOfCircle(Part.Circle(Vector(19.251535, 16.798361, 0), Vector(0, 0, 1), 7.950199), math.radians(174.260822), math.radians(267.953292)),
    Part.LineSegment(Vector(11.341187, 17.593382, 0), Vector(15.795426, 61.9125, 0)),
    Part.ArcOfCircle(Part.Circle(Vector(-0.000084, 63.5, 0), Vector(0, 0, 1), 15.875084), math.radians(-5.73914), math.radians(0)),
    Part.ArcOfCircle(Part.Circle(Vector(-0.000071, 63.499996, 0), Vector(0, 0, 1), 15.875071), math.radians(0.000015), math.radians(7.267739)),
    Part.LineSegment(Vector(15.747457, 65.508289, 0), Vector(9.525, 114.3, 0)),
    Part.ArcOfCircle(Part.Circle(Vector(0, 114.3, 0), Vector(0, 0, 1), 9.525), math.radians(0), math.radians(180)),
    Part.LineSegment(Vector(-9.525, 114.3, 0), Vector(-15.747457, 65.508289, 0)),
    Part.ArcOfCircle(Part.Circle(Vector(-0.000021, 63.499999, 0), Vector(0, 0, 1), 15.874979), math.radians(172.732229), math.radians(185.739173)),
    Part.LineSegment(Vector(-15.795426, 61.9125, 0), Vector(-9.477255, -0.9525, 0)),
    Part.Circle(Vector(0, 0, 0), Vector(0, 0, 1), 3.175),
    Part.Circle(Vector(44.45, 0, 0), Vector(0, 0, 1), 3.175),
    Part.Circle(Vector(0, 63.5, 0), Vector(0, 0, 1), 3.175),
    Part.Circle(Vector(-3.175, 100.0252, 0), Vector(0, 0, 1), 3.175),
    Part.Circle(Vector(0, 114.3, 0), Vector(0, 0, 1), 3.175),
], False)
sketch4.addConstraint([
    Sketcher.Constraint("Coincident", 0, 2, 1, 1),
    Sketcher.Constraint("Coincident", 1, 2, 2, 1),
    Sketcher.Constraint("Coincident", 2, 2, 3, 1),
    Sketcher.Constraint("Coincident", 3, 2, 4, 1),
    Sketcher.Constraint("Coincident", 4, 2, 5, 2),
    Sketcher.Constraint("Coincident", 5, 1, 6, 1),
    Sketcher.Constraint("Coincident", 6, 2, 7, 1),
    Sketcher.Constraint("Coincident", 7, 2, 8, 1),
    Sketcher.Constraint("Coincident", 8, 2, 9, 1),
    Sketcher.Constraint("Coincident", 9, 2, 10, 1),
    Sketcher.Constraint("Coincident", 10, 2, 11, 1),
    Sketcher.Constraint("Coincident", 11, 2, 12, 1),
    Sketcher.Constraint("Coincident", 12, 2, 13, 1),
    Sketcher.Constraint("Coincident", 13, 2, 0, 1),
    Sketcher.Constraint("Coincident", 0, 3, -1, 1),
    Sketcher.Constraint("Coincident", 14, 3, -1, 1),
    Sketcher.Constraint("Coincident", 3, 3, 2, 3),
    Sketcher.Constraint("Coincident", 15, 3, 2, 3),
    Sketcher.Constraint("Coincident", 18, 3, 10, 3),
    Sketcher.Constraint("PointOnObject", 2, 3, -1),
    Sketcher.Constraint("PointOnObject", 10, 3, -2),
    Sketcher.Constraint("PointOnObject", 16, 3, -2),
    Sketcher.Constraint("PointOnObject", 2, 2, -1),
    Sketcher.Constraint("Diameter", 14, Q("0.25 in")),
    Sketcher.Constraint("Diameter", 15, Q("0.25 in")),
    Sketcher.Constraint("Diameter", 16, Q("0.25 in")),
    Sketcher.Constraint("Diameter", 17, Q("0.25 in")),
    Sketcher.Constraint("Diameter", 18, Q("0.25 in")),
    Sketcher.Constraint("Radius", 0, Q("0.375 in")),
    Sketcher.Constraint("Radius", 2, Q("0.3125 in")),
    Sketcher.Constraint("Radius", 5, Q("0.313 in")),
    Sketcher.Constraint("Radius", 10, Q("0.375 in")),
    Sketcher.Constraint("DistanceY", 7, 3, 10, 3, Q("2 in")),
    Sketcher.Constraint("DistanceY", 8, 3, 10, 3, Q("2.0000002 in")),
    Sketcher.Constraint("DistanceY", 12, 3, 10, 3, Q("2.0000001 in")),
    Sketcher.Constraint("DistanceY", 16, 3, 10, 3, Q("2 in")),
    Sketcher.Constraint("DistanceY", 7, 2, 9, 2, Q("2 in")),
    Sketcher.Constraint("DistanceY", 7, 3, 10, 2, Q("2 in")),
    Sketcher.Constraint("DistanceY", -1, 1, 7, 3, Q("2.5 in")),
    Sketcher.Constraint("DistanceY", -1, 1, 7, 2, Q("2.5 in")),
    Sketcher.Constraint("DistanceX", 17, 3, 9, 2, Q("0.5 in")),
    Sketcher.Constraint("DistanceX", -1, 1, 2, 3, Q("1.75 in")),
    Sketcher.Constraint("DistanceX", 9, 2, 7, 2, Q("0.25 in")),
    Sketcher.Constraint("DistanceY", -1, 1, 17, 3, Q("3.938 in")),
    Sketcher.Constraint("DistanceY", -1, 1, 6, 2, Q("2.4375 in")),
    Sketcher.Constraint("DistanceY", -1, 1, 12, 2, Q("2.4375 in")),
    Sketcher.Constraint("Radius", 8, 15.875071),
    Sketcher.Constraint("Radius", 12, 15.874979),
    Sketcher.Constraint("DistanceY", 13, 2, -1, 1, Q("0.0375 in")),
    Sketcher.Constraint("Radius", 7, 15.875084),
    Sketcher.Constraint("DistanceY", 5, 3, 5, 1, Q("0.0313 in")),
    Sketcher.Constraint("DistanceX", -1, 1, 4, 2, 18.9676),
    Sketcher.Constraint("Distance", 4, 25.78233),
    Sketcher.Constraint("Distance", 6, 44.54239),
    Sketcher.Constraint("Distance", 9, 49.186889),
    Sketcher.Constraint("Distance", 11, 49.186889),
    Sketcher.Constraint("DistanceY", -1, 1, 5, 3, 16.798361),
    Sketcher.Constraint("DistanceX", -1, 1, 0, 2, 0.340179),
    Sketcher.Constraint("DistanceY", -1, 1, 11, 2, 65.508289),
    Sketcher.Constraint("DistanceX", 2, 3, 1, 2, 0.283481),
])
pad4 = doc.addObject("PartDesign::Pad", "Pad003")
body4.addObject(pad4)
pad4.Profile = sketch4
pad4.Length = Q("1 in")

doc.recompute()
